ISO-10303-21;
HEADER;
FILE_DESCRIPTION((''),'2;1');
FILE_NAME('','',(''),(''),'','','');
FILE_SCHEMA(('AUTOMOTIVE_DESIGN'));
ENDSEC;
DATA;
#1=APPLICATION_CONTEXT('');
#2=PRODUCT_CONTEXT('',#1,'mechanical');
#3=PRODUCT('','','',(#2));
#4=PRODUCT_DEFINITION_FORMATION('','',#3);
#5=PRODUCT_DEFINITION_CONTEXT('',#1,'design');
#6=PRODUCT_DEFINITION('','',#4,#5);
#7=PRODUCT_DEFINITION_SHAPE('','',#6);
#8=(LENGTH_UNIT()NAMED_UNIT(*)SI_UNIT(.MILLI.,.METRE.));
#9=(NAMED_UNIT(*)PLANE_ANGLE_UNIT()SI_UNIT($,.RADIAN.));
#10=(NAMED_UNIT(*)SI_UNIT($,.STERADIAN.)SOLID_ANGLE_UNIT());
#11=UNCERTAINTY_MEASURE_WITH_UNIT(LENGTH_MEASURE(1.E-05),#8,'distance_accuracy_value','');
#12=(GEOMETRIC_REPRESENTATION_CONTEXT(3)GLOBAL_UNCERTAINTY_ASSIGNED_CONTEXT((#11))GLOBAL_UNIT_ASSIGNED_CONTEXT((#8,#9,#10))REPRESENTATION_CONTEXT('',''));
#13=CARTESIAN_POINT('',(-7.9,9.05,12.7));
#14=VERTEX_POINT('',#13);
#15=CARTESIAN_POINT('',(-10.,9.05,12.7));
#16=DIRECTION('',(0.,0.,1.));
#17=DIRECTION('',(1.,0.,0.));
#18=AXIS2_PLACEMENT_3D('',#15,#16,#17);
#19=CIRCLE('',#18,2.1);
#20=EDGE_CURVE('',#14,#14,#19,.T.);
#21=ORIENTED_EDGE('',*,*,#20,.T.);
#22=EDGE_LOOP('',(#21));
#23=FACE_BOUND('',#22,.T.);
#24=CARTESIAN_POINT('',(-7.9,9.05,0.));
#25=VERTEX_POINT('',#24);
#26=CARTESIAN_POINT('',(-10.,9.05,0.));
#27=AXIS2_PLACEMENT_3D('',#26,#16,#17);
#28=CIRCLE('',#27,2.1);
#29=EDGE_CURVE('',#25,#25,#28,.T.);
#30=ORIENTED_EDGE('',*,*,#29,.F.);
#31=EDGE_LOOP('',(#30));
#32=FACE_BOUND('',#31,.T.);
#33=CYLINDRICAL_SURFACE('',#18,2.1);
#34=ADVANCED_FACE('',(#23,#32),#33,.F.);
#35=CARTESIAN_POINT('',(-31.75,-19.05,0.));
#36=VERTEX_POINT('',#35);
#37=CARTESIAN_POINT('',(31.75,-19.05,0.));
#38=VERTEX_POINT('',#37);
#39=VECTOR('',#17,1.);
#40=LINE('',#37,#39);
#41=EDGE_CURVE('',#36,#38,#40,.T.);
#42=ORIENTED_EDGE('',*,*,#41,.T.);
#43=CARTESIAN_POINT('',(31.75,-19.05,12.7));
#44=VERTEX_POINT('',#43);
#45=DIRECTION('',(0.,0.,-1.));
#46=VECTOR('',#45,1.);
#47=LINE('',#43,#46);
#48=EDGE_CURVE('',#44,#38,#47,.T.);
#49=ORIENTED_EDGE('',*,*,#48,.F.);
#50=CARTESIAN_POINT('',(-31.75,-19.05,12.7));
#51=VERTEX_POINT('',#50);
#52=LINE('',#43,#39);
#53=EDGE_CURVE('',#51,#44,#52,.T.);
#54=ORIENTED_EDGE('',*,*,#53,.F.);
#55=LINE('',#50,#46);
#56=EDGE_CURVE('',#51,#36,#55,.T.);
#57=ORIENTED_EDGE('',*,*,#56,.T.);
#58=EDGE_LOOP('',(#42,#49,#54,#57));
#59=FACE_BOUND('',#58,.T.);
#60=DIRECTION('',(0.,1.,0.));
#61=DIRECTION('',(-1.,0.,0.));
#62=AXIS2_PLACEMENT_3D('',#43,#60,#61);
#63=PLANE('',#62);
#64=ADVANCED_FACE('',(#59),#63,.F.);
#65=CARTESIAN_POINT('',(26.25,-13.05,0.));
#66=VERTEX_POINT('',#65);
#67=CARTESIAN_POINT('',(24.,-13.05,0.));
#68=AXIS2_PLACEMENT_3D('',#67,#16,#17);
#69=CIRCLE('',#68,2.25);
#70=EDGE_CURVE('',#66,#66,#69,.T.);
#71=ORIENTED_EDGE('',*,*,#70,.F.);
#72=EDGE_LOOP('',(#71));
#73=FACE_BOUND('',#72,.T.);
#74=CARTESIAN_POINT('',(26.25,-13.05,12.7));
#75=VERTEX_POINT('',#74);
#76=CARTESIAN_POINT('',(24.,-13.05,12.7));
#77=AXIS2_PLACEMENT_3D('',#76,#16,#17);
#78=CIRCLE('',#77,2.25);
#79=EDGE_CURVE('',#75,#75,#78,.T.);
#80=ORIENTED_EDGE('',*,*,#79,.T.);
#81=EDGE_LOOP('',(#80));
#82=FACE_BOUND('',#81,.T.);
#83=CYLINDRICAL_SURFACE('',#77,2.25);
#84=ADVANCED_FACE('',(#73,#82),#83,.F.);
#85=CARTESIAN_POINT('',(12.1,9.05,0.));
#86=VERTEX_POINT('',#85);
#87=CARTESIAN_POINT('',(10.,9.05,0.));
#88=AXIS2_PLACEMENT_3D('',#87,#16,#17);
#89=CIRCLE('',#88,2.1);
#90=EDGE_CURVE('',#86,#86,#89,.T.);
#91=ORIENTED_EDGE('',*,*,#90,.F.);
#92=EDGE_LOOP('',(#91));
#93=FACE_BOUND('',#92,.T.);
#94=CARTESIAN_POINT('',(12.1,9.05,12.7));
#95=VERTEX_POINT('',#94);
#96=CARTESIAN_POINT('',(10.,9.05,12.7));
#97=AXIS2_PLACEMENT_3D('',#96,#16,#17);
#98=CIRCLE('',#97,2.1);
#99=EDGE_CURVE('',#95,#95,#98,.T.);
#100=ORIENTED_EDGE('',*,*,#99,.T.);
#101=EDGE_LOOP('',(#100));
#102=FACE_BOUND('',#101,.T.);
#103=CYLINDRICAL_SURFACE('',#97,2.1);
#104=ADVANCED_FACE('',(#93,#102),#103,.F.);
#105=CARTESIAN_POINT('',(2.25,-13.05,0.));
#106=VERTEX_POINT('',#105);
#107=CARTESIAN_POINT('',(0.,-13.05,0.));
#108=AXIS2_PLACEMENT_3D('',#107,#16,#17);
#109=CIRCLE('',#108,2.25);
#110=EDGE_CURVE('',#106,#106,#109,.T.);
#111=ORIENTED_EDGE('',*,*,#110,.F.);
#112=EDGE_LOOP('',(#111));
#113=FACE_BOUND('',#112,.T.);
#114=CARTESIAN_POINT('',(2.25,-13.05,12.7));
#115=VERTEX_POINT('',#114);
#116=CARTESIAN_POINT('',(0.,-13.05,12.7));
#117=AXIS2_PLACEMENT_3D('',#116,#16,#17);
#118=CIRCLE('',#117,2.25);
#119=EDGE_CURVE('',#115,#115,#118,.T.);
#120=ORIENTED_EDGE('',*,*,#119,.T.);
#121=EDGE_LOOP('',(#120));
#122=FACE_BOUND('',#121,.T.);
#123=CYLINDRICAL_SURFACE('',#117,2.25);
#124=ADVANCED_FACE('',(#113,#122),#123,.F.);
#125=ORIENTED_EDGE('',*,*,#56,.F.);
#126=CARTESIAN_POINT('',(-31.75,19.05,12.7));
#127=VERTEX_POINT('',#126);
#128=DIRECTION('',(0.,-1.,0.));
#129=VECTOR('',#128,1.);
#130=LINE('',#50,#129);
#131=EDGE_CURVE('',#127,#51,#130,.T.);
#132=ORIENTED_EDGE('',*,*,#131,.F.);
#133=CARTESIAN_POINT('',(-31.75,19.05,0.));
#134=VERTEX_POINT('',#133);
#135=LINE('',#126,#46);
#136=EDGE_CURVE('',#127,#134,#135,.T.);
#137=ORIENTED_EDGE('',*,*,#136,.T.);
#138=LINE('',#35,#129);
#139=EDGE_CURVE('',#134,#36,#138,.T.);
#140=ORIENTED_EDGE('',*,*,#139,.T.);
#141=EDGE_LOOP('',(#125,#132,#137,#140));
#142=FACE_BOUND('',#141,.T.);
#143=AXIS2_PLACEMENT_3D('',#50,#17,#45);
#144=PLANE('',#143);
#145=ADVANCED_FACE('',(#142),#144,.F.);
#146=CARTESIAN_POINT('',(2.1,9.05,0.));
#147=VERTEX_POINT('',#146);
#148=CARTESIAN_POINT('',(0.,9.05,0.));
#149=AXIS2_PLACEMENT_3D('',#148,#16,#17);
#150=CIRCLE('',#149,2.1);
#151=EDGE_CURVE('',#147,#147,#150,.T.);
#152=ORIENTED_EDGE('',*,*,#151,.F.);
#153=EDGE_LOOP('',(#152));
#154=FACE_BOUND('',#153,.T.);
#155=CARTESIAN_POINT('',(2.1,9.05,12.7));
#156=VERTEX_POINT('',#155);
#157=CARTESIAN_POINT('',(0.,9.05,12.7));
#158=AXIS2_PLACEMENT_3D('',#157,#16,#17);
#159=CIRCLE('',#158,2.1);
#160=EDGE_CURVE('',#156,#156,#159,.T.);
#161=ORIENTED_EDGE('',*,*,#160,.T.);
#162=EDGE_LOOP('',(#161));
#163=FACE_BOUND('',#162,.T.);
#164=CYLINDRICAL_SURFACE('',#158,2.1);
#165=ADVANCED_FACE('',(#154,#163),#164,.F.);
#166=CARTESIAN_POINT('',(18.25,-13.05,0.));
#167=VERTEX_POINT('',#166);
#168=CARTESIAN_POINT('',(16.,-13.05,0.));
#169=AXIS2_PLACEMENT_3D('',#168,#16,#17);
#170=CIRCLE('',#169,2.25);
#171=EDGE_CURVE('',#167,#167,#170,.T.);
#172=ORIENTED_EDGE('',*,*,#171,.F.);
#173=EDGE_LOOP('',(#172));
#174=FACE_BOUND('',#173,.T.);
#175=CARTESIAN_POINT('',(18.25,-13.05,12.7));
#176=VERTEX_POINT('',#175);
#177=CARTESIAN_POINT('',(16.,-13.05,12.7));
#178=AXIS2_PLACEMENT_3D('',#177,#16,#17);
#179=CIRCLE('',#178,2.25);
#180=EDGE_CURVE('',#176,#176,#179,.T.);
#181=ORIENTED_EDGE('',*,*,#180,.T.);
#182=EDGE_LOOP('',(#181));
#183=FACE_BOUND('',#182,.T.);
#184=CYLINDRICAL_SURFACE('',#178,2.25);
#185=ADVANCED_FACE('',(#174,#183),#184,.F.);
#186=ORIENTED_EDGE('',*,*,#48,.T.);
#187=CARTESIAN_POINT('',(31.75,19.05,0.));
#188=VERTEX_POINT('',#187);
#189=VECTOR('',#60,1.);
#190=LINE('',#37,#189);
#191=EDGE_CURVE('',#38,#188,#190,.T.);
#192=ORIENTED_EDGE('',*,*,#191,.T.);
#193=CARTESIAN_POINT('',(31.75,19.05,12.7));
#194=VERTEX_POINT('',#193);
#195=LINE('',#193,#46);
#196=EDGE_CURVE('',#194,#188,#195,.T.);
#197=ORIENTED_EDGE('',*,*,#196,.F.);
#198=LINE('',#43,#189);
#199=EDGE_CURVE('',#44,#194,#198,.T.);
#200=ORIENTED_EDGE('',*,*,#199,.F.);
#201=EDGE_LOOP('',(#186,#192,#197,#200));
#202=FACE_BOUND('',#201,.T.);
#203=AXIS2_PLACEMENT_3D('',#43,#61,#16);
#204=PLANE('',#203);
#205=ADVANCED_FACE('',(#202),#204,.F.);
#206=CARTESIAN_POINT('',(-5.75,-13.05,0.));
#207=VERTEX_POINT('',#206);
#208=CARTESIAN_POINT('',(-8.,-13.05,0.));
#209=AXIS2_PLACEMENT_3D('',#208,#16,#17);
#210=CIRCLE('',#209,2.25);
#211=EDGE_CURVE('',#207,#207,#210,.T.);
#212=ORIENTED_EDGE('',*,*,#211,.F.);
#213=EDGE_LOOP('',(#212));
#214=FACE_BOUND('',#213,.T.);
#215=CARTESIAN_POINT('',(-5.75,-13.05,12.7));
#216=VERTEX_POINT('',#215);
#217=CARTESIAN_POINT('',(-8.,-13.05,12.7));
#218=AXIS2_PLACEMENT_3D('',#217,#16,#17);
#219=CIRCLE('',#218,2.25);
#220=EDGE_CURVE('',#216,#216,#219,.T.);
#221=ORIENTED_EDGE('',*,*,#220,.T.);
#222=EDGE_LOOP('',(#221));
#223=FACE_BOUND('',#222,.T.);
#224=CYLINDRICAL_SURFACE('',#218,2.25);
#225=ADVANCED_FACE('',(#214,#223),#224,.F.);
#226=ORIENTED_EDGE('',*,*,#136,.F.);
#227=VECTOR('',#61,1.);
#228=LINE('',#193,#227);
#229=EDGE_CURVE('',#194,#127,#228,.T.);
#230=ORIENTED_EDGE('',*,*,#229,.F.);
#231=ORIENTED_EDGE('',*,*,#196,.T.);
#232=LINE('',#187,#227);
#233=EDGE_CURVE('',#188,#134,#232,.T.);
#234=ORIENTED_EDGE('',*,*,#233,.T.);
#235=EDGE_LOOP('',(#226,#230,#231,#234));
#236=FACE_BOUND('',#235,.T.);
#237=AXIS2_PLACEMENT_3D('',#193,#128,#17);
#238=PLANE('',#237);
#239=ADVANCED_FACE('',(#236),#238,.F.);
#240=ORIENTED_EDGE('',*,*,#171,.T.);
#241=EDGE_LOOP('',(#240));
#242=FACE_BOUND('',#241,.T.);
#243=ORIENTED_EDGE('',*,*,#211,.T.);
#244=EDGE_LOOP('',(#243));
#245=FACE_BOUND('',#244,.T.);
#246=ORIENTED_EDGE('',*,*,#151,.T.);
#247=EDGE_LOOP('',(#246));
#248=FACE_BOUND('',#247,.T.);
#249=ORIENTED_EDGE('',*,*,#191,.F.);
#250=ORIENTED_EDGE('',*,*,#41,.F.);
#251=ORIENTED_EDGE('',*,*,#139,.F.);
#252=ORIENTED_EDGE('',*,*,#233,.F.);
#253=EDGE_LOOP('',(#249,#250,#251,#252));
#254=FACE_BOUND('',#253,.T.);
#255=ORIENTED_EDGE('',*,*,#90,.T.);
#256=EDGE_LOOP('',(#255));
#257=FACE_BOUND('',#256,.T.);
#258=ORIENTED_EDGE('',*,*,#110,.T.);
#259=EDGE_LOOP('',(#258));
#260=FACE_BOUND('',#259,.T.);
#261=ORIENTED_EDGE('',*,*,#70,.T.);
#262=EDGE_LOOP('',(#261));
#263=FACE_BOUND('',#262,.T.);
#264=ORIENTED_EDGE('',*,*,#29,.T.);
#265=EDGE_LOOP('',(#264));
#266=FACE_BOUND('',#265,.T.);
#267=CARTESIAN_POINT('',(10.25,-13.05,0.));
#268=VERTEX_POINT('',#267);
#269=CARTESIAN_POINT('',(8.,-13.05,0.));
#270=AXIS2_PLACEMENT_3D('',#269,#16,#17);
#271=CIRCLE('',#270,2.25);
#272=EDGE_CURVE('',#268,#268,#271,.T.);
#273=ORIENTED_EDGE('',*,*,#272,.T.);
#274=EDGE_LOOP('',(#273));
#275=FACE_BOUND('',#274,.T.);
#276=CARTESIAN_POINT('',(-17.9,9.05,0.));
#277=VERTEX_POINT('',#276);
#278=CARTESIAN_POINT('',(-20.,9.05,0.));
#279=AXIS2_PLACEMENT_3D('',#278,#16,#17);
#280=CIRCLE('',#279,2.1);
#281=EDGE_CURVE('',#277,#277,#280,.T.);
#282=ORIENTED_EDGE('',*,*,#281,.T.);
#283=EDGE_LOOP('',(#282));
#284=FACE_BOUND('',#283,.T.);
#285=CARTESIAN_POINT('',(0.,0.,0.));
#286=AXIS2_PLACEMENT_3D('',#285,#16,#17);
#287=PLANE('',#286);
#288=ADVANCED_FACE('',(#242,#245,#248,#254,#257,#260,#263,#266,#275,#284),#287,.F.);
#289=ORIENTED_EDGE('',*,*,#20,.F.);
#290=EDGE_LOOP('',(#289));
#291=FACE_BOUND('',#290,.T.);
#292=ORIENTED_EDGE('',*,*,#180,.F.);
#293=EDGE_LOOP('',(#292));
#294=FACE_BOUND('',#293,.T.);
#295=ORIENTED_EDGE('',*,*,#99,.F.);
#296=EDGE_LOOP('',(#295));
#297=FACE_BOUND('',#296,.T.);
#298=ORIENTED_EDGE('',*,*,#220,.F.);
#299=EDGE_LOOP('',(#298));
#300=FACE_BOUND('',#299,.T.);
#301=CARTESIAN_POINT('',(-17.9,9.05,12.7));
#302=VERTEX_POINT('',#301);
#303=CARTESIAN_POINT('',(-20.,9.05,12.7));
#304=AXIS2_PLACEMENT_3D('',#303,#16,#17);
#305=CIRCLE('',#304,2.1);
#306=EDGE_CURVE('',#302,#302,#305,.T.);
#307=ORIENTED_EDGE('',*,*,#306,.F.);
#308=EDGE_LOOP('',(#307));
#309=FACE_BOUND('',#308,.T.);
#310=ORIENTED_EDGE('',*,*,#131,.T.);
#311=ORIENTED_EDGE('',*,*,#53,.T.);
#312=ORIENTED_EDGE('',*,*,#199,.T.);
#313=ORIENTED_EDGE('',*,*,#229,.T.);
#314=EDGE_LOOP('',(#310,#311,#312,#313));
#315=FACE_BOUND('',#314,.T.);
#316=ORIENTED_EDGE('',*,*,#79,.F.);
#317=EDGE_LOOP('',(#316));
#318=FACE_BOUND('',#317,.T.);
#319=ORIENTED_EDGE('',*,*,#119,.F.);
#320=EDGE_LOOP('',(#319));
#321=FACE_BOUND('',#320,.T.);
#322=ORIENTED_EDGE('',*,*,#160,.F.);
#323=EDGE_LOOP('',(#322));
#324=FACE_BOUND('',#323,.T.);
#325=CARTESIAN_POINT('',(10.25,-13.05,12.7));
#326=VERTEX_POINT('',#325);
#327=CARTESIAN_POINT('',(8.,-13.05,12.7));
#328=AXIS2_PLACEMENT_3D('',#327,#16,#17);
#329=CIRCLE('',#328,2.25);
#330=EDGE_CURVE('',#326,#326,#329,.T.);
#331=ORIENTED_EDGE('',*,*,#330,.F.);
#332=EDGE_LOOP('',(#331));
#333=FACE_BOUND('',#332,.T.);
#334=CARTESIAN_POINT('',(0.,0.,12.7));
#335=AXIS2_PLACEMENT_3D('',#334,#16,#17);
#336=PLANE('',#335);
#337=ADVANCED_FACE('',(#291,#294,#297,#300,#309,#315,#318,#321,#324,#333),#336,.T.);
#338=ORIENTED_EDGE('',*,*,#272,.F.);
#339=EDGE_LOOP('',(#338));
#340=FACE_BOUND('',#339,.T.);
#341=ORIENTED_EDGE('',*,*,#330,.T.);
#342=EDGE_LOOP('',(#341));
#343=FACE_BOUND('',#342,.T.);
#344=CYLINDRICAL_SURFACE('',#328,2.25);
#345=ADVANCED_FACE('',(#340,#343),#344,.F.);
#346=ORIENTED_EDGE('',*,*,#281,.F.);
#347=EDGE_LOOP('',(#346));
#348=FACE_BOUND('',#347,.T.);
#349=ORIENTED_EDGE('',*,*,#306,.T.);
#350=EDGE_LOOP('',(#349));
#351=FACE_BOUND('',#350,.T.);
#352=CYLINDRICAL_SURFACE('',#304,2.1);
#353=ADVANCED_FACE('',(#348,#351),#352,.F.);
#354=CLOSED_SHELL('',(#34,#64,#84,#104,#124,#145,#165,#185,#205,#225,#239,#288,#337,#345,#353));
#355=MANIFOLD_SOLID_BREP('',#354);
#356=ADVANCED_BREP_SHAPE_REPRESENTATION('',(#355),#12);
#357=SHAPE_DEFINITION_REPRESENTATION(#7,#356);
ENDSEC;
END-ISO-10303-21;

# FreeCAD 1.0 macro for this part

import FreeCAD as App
import Part
import Sketcher

V = App.Vector
Q = App.Units.Quantity


def add_polygon(sketch, points):
    """Adds a closed chain of lines whose ends are joined by coincident constraints."""
    first, n = sketch.GeometryCount, len(points)
    for a, b in zip(points, points[1:] + points[:1]):
        sketch.addGeometry(Part.LineSegment(App.Vector(*a, 0), App.Vector(*b, 0)), False)
    for i in range(n):
        sketch.addConstraint(Sketcher.Constraint("Coincident", first + i, 2, first + (i + 1) % n, 1))

doc = App.newDocument("Part")
params = doc.addObject("Spreadsheet::Sheet", "Params")
for row, (alias, value) in enumerate([
    ("sketch1_width", "2.5 in"),
    ("sketch1_height", "1.5 in"),
    ("pad1_length", "0.5 in"),
    ("hole_diameter", "4.5 mm"),
    ("hole2_diameter", "4.2 mm"),
], start=1):
    params.set(f"A{row}", alias)
    params.set(f"B{row}", "=" + value)
    params.setAlias(f"B{row}", alias)

body = doc.addObject("PartDesign::Body", "Body")

# Sketch on XY plane
sketch1 = body.newObject("Sketcher::SketchObject", "Sketch")
sketch1.AttachmentSupport = (doc.getObject("XY_Plane"), [""])
sketch1.MapMode = "FlatFace"
add_polygon(sketch1, [(-32, 19), (-32, -19), (32, -19), (32, 19)])  # lines 0-3
sketch1.addConstraint([
    Sketcher.Constraint("Vertical", 0),
    Sketcher.Constraint("Horizontal", 1),
    Sketcher.Constraint("Vertical", 2),
    Sketcher.Constraint("Horizontal", 3),
    Sketcher.Constraint("Symmetric", 0, 2, 2, 2, -1, 1),
    Sketcher.Constraint("DistanceX", 1, 1, 1, 2, Q("2.5 in")),
    Sketcher.Constraint("DistanceY", 0, 2, 0, 1, Q("1.5 in")),
])
sketch1.setExpression("Constraints[9]", "Params.sketch1_width")
sketch1.setExpression("Constraints[10]", "Params.sketch1_height")
pad1 = body.newObject("PartDesign::Pad", "Pad")
pad1.Profile = sketch1
pad1.setExpression("Length", "Params.pad1_length")

# Sketch on XY plane
sketch2 = body.newObject("Sketcher::SketchObject", "Sketch001")
sketch2.AttachmentSupport = (doc.getObject("XY_Plane"), [""])
sketch2.MapMode = "FlatFace"
sketch2.AttachmentOffset = App.Placement(V(0, 0, 0.5 * 25.4), App.Rotation())
sketch2.addGeometry([
    Part.Circle(V(-8, -13.1, 0), V(0, 0, 1), 2.2),  # 0
    Part.Circle(V(0, -13.1, 0), V(0, 0, 1), 2.2),  # 1
    Part.Circle(V(8, -13.1, 0), V(0, 0, 1), 2.2),  # 2
    Part.Circle(V(16, -13.1, 0), V(0, 0, 1), 2.2),  # 3
    Part.Circle(V(24, -13.1, 0), V(0, 0, 1), 2.2),  # 4
], False)
sketch2.addConstraint([
    Sketcher.Constraint("Equal", 0, 1),
    Sketcher.Constraint("Equal", 1, 2),
    Sketcher.Constraint("Equal", 2, 3),
    Sketcher.Constraint("Equal", 3, 4),
    Sketcher.Constraint("Symmetric", 0, 3, 2, 3, -2),
    Sketcher.Constraint("PointOnObject", 1, 3, -2),
    Sketcher.Constraint("Horizontal", 0, 3, 1, 3),
    Sketcher.Constraint("Horizontal", 2, 3, 3, 3),
    Sketcher.Constraint("Horizontal", 3, 3, 4, 3),
    Sketcher.Constraint("Diameter", 0, 4.5),
    Sketcher.Constraint("DistanceX", 0, 3, -1, 1, 8.0),
    Sketcher.Constraint("DistanceY", 0, 3, -1, 1, 13.05),
    Sketcher.Constraint("DistanceX", -1, 1, 3, 3, 16.0),
    Sketcher.Constraint("DistanceX", -1, 1, 4, 3, 24.0),
])
doc.recompute()
hole = body.newObject("PartDesign::Hole", "Hole")
hole.Profile = sketch2
hole.ThreadType = "None"
hole.setExpression("Diameter", "Params.hole_diameter")
hole.DepthType = "ThroughAll"

# Sketch on XY plane
sketch3 = body.newObject("Sketcher::SketchObject", "Sketch002")
sketch3.AttachmentSupport = (doc.getObject("XY_Plane"), [""])
sketch3.MapMode = "FlatFace"
sketch3.AttachmentOffset = App.Placement(V(0, 0, 0.5 * 25.4), App.Rotation())
sketch3.addGeometry([
    Part.Circle(V(-20, 9.1, 0), V(0, 0, 1), 2.1),
    Part.Circle(V(-10, 9.1, 0), V(0, 0, 1), 2.1),
    Part.Circle(V(0, 9.1, 0), V(0, 0, 1), 2.1),
    Part.Circle(V(10, 9.1, 0), V(0, 0, 1), 2.1),
], False)
sketch3.addConstraint([
    Sketcher.Constraint("Equal", 0, 1),
    Sketcher.Constraint("Equal", 1, 2),
    Sketcher.Constraint("Equal", 2, 3),
    Sketcher.Constraint("Symmetric", 1, 3, 3, 3, -2),
    Sketcher.Constraint("PointOnObject", 2, 3, -2),
    Sketcher.Constraint("Horizontal", 0, 3, 1, 3),
    Sketcher.Constraint("Horizontal", 1, 3, 2, 3),
    Sketcher.Constraint("Diameter", 0, 4.2),
    Sketcher.Constraint("DistanceX", 0, 3, -1, 1, 20.0),
    Sketcher.Constraint("DistanceY", -1, 1, 0, 3, 9.05),
    Sketcher.Constraint("DistanceX", 1, 3, -1, 1, 10.0),
])
doc.recompute()
hole2 = body.newObject("PartDesign::Hole", "Hole001")
hole2.Profile = sketch3
hole2.ThreadType = "None"
hole2.setExpression("Diameter", "Params.hole2_diameter")
hole2.DepthType = "ThroughAll"

doc.recompute()
